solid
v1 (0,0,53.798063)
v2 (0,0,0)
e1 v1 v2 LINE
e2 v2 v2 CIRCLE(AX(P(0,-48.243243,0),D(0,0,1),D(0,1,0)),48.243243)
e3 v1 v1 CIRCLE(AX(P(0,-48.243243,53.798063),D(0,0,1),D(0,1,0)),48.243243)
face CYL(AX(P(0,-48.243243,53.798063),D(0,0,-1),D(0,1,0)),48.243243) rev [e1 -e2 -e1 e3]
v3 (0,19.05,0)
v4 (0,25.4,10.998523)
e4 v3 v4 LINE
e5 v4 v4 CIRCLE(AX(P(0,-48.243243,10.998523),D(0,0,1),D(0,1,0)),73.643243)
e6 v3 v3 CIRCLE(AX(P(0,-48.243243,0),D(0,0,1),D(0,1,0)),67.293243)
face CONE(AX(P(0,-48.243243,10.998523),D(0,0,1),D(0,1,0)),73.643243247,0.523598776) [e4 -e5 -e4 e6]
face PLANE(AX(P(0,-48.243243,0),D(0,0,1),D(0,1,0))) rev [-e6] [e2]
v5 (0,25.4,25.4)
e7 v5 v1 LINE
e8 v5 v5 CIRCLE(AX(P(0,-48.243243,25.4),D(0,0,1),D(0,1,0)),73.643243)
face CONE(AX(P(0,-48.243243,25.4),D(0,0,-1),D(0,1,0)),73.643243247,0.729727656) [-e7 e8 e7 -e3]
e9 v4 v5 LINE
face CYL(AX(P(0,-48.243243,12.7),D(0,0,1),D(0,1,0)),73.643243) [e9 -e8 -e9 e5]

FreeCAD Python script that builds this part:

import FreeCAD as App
import Part
import Sketcher
from FreeCAD import Vector
Q = App.Units.Quantity


def edges_at(feature, points):
    """Names of the edges that pass closest to the given points."""
    edges = feature.Shape.Edges
    near = lambda p: min(range(len(edges)), key=lambda i: edges[i].distToShape(Part.Vertex(*p))[0])
    return sorted({f"Edge{near(p) + 1}" for p in points})


def add_polygon(sketch, points):
    """Adds a closed chain of lines whose ends are joined by coincident constraints."""
    first, n = sketch.GeometryCount, len(points)
    for a, b in zip(points, points[1:] + points[:1]):
        sketch.addGeometry(Part.LineSegment(App.Vector(*a, 0), App.Vector(*b, 0)), False)
    for i in range(n):
        sketch.addConstraint(Sketcher.Constraint("Coincident", first + i, 2, first + (i + 1) % n, 1))

doc = App.newDocument("Part")
params = doc.addObject("Spreadsheet::Sheet", "Params")
for row, (alias, value) in enumerate([
    ("sketch1_width", "1 in"),
    ("sketch1_length", "1.5 in"),
    ("revolution_angle", "360 deg"),
    ("chamfer_size", "0.25 in"),
    ("chamfer_size2", "10.998523 mm"),
], start=1):
    params.set(f"A{row}", alias)
    params.set(f"B{row}", "=" + value)
    params.setAlias(f"B{row}", alias)

body = doc.addObject("PartDesign::Body", "Body")

# Sketch on YZ plane
sketch1 = body.newObject("Sketcher::SketchObject", "Sketch")
sketch1.AttachmentSupport = (doc.getObject("YZ_Plane"), [""])
sketch1.MapMode = "FlatFace"
add_polygon(sketch1, [(0, 0), (25, 0), (25, 25), (0, 54)])  # lines 0-3
sketch1.addGeometry(Part.LineSegment(Vector(-48, 0, 0), Vector(-48, 54, 0)), True)  # axis
sketch1.addConstraint(Sketcher.Constraint("Horizontal", 0))
sketch1.addConstraint(Sketcher.Constraint("Vertical", 1))
sketch1.addConstraint(Sketcher.Constraint("Vertical", 3))
sketch1.addConstraint(Sketcher.Constraint("Vertical", 4))
sketch1.addConstraint(Sketcher.Constraint("Coincident", 3, 2, -1, 1))
sketch1.addConstraint(Sketcher.Constraint("PointOnObject", 4, 1, -1))
sketch1.addConstraint(Sketcher.Constraint("Horizontal", 2, 2, 4, 2))
sketch1.addConstraint(Sketcher.Constraint("Equal", 0, 1))
sketch1.addConstraint(Sketcher.Constraint("DistanceX", 0, 1, 0, 2, Q("1 in")))
sketch1.addConstraint(Sketcher.Constraint("Distance", 2, Q("1.5 in")))
sketch1.addConstraint(Sketcher.Constraint("DistanceX", 4, 1, -1, 1, Q("48.243243 mm")))
sketch1.setExpression("Constraints[12]", "Params.sketch1_width")
sketch1.setExpression("Constraints[13]", "Params.sketch1_length")
revolution = body.newObject("PartDesign::Revolution", "Revolution")
revolution.Profile = sketch1
revolution.ReferenceAxis = (sketch1, ["Axis0"])
revolution.setExpression("Angle", "Params.revolution_angle")
doc.recompute()

chamfer = body.newObject("PartDesign::Chamfer", "Chamfer")
chamfer.Base = (revolution, edges_at(revolution, [(0, -121.886, 0)]))
chamfer.ChamferType = "Two distances"
chamfer.setExpression("Size", "Params.chamfer_size")
chamfer.setExpression("Size2", "Params.chamfer_size2")

doc.recompute()
